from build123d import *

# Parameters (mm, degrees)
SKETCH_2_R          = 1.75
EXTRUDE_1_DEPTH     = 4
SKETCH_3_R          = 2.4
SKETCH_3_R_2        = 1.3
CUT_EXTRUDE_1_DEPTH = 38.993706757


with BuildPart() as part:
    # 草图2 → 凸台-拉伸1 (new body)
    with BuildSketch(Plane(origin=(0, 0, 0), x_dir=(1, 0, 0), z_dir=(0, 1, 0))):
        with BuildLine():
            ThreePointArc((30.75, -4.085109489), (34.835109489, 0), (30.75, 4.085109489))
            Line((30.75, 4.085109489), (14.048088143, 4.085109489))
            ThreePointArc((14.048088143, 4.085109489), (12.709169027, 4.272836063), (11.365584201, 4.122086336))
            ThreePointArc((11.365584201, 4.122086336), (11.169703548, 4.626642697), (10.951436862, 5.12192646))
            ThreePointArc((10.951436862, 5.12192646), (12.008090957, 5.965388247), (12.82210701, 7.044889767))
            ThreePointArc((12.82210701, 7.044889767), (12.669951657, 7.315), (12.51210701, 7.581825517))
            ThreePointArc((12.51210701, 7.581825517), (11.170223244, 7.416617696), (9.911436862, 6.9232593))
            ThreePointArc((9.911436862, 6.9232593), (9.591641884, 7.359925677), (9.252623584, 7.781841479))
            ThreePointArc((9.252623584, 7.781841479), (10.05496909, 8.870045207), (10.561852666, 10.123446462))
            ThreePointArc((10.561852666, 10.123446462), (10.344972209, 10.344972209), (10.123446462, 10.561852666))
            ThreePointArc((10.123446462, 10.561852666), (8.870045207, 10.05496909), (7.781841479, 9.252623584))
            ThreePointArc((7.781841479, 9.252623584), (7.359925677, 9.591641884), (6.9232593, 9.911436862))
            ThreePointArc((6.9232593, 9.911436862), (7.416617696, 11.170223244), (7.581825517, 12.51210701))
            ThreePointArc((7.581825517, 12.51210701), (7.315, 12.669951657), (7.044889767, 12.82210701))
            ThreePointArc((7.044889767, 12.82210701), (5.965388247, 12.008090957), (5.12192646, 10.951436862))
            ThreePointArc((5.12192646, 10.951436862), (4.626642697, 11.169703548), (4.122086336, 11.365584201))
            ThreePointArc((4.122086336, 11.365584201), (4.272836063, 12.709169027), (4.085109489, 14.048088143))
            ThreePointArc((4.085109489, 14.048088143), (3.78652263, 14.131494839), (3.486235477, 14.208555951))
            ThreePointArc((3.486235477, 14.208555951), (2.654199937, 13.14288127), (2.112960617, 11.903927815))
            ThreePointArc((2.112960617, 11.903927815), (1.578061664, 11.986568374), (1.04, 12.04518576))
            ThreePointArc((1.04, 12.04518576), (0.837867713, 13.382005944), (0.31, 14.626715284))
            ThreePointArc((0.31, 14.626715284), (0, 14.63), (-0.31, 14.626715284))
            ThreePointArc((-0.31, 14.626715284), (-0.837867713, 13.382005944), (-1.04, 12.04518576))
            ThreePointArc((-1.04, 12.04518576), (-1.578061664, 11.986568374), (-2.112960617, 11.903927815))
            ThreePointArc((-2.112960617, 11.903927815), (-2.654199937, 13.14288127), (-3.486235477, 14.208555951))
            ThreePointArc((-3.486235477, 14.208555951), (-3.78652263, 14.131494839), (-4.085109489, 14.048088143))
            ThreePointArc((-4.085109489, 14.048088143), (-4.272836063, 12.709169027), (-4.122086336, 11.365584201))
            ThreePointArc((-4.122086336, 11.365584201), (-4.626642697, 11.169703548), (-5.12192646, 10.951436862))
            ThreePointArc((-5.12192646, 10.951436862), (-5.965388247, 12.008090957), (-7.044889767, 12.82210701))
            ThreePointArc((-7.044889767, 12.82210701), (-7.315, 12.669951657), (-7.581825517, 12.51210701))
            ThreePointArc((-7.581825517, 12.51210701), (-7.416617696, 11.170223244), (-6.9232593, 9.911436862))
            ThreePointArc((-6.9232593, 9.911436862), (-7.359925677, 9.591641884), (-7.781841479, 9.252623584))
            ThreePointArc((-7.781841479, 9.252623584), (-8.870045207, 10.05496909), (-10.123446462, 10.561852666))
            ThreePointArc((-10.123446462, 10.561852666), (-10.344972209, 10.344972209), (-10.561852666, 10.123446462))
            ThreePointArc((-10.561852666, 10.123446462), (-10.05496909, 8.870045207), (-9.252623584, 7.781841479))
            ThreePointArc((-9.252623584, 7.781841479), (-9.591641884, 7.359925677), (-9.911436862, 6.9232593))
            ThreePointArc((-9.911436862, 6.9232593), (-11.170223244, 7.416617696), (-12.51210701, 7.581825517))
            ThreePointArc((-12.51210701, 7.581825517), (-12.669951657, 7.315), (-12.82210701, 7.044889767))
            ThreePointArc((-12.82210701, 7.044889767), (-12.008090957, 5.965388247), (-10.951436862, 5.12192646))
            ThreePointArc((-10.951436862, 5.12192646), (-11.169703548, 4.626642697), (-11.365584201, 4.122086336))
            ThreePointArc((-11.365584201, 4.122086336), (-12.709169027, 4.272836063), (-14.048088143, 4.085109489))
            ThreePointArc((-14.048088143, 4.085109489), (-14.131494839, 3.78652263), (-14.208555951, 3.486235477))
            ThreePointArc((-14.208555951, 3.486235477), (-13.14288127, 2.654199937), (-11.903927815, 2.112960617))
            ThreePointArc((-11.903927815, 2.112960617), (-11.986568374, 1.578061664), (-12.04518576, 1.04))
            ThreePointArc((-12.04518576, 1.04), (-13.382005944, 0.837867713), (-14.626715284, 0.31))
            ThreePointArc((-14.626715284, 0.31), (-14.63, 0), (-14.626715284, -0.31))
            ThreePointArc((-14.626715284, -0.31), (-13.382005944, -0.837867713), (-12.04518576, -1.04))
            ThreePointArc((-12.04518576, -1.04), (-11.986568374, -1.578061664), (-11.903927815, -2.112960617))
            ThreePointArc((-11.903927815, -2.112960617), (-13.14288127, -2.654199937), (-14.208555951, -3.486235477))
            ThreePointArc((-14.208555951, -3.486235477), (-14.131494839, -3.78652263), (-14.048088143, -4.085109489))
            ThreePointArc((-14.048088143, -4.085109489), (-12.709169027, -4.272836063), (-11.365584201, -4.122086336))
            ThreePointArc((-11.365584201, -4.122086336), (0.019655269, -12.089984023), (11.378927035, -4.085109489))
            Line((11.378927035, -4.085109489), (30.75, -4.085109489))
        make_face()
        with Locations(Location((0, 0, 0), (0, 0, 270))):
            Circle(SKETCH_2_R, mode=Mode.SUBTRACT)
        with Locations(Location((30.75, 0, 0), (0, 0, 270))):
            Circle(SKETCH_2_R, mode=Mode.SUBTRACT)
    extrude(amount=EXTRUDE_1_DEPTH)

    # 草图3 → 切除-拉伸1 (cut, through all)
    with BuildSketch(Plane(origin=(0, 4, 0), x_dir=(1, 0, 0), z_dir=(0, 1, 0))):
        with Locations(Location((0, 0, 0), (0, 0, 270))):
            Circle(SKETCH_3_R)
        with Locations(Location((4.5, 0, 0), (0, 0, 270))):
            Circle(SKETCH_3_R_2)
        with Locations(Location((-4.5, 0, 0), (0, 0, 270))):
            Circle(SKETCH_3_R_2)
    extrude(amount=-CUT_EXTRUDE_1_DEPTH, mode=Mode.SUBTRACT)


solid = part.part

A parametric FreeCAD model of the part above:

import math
import FreeCAD as App
import Part
import Sketcher

doc = App.newDocument("Part")
body = doc.addObject("PartDesign::Body", "Body")

# Sketch on XZ plane
sketch1 = doc.addObject("Sketcher::SketchObject", "Sketch")
body.addObject(sketch1)
sketch1.AttachmentSupport = (doc.XZ_Plane, [""])
sketch1.MapMode = "FlatFace"
sketch1.addGeometry(Part.ArcOfCircle(Part.Circle(App.Vector(30.8, 0, 0), App.Vector(0, 0, 1), 4.1), math.radians(-90), math.radians(90)), False)
sketch1.addGeometry(Part.LineSegment(App.Vector(30.8, -4.1, 0), App.Vector(14, -4.1, 0)), False)
sketch1.addGeometry(Part.ArcOfCircle(Part.Circle(App.Vector(12.6, 1.1, 0), App.Vector(0, 0, 1), 5.4), math.radians(-104), math.radians(-75)), False)
sketch1.addGeometry(Part.ArcOfCircle(Part.Circle(App.Vector(0, 0, 0), App.Vector(0, 0, 1), 12.1), math.radians(-25.07), math.radians(-19.93)), False)
sketch1.addGeometry(Part.ArcOfCircle(Part.Circle(App.Vector(8.1, -9.7, 0), App.Vector(0, 0, 1), 5.4), math.radians(30), math.radians(59)), False)
sketch1.addGeometry(Part.ArcOfCircle(Part.Circle(App.Vector(0, 0, 0), App.Vector(0, 0, 1), 14.6), math.radians(-31.21), math.radians(-28.79)), False)
sketch1.addGeometry(Part.ArcOfCircle(Part.Circle(App.Vector(12.5, -2.2, 0), App.Vector(0, 0, 1), 5.4), math.radians(-119), math.radians(-90)), False)
sketch1.addGeometry(Part.ArcOfCircle(Part.Circle(App.Vector(0, 0, 0), App.Vector(0, 0, 1), 12.1), math.radians(-40.07), math.radians(-34.93)), False)
sketch1.addGeometry(Part.ArcOfCircle(Part.Circle(App.Vector(5.3, -11.5, 0), App.Vector(0, 0, 1), 5.4), math.radians(15), math.radians(44)), False)
sketch1.addGeometry(Part.ArcOfCircle(Part.Circle(App.Vector(0, 0, 0), App.Vector(0, 0, 1), 14.6), math.radians(-46.21), math.radians(-43.79)), False)
sketch1.addGeometry(Part.ArcOfCircle(Part.Circle(App.Vector(11.5, -5.3, 0), App.Vector(0, 0, 1), 5.4), math.radians(-134), math.radians(-105)), False)
sketch1.addGeometry(Part.ArcOfCircle(Part.Circle(App.Vector(0, 0, 0), App.Vector(0, 0, 1), 12.1), math.radians(-55.07), math.radians(-49.93)), False)
sketch1.addGeometry(Part.ArcOfCircle(Part.Circle(App.Vector(2.2, -12.5, 0), App.Vector(0, 0, 1), 5.4), math.radians(0), math.radians(29)), False)
sketch1.addGeometry(Part.ArcOfCircle(Part.Circle(App.Vector(0, 0, 0), App.Vector(0, 0, 1), 14.6), math.radians(-61.21), math.radians(-58.79)), False)
sketch1.addGeometry(Part.ArcOfCircle(Part.Circle(App.Vector(9.7, -8.1, 0), App.Vector(0, 0, 1), 5.4), math.radians(-149), math.radians(-120)), False)
sketch1.addGeometry(Part.ArcOfCircle(Part.Circle(App.Vector(0, 0, 0), App.Vector(0, 0, 1), 12.1), math.radians(-70.07), math.radians(-64.93)), False)
sketch1.addGeometry(Part.ArcOfCircle(Part.Circle(App.Vector(-1.1, -12.6, 0), App.Vector(0, 0, 1), 5.4), math.radians(-15), math.radians(14)), False)
sketch1.addGeometry(Part.ArcOfCircle(Part.Circle(App.Vector(0, 0, 0), App.Vector(0, 0, 1), 14.6), math.radians(-76.21), math.radians(-73.79)), False)
sketch1.addGeometry(Part.ArcOfCircle(Part.Circle(App.Vector(7.3, -10.4, 0), App.Vector(0, 0, 1), 5.4), math.radians(-164), math.radians(-135)), False)
sketch1.addGeometry(Part.ArcOfCircle(Part.Circle(App.Vector(0, 0, 0), App.Vector(0, 0, 1), 12.1), math.radians(-85.07), math.radians(-79.93)), False)
sketch1.addGeometry(Part.ArcOfCircle(Part.Circle(App.Vector(-4.4, -11.9, 0), App.Vector(0, 0, 1), 5.4), math.radians(-30), math.radians(-1)), False)
sketch1.addGeometry(Part.ArcOfCircle(Part.Circle(App.Vector(0, 0, 0), App.Vector(0, 0, 1), 14.6), math.radians(-91.21), math.radians(-88.79)), False)
sketch1.addGeometry(Part.ArcOfCircle(Part.Circle(App.Vector(4.4, -11.9, 0), App.Vector(0, 0, 1), 5.4), math.radians(-179), math.radians(-150)), False)
sketch1.addGeometry(Part.ArcOfCircle(Part.Circle(App.Vector(0, 0, 0), App.Vector(0, 0, 1), 12.1), math.radians(-100.07), math.radians(-94.93)), False)
sketch1.addGeometry(Part.ArcOfCircle(Part.Circle(App.Vector(-7.3, -10.4, 0), App.Vector(0, 0, 1), 5.4), math.radians(-45), math.radians(-16)), False)
sketch1.addGeometry(Part.ArcOfCircle(Part.Circle(App.Vector(0, 0, 0), App.Vector(0, 0, 1), 14.6), math.radians(-106.21), math.radians(-103.79)), False)
sketch1.addGeometry(Part.ArcOfCircle(Part.Circle(App.Vector(1.1, -12.6, 0), App.Vector(0, 0, 1), 5.4), math.radians(166), math.radians(195)), False)
sketch1.addGeometry(Part.ArcOfCircle(Part.Circle(App.Vector(0, 0, 0), App.Vector(0, 0, 1), 12.1), math.radians(-115.07), math.radians(-109.93)), False)
sketch1.addGeometry(Part.ArcOfCircle(Part.Circle(App.Vector(-9.7, -8.1, 0), App.Vector(0, 0, 1), 5.4), math.radians(-60), math.radians(-31)), False)
sketch1.addGeometry(Part.ArcOfCircle(Part.Circle(App.Vector(0, 0, 0), App.Vector(0, 0, 1), 14.6), math.radians(-121.21), math.radians(-118.79)), False)
sketch1.addGeometry(Part.ArcOfCircle(Part.Circle(App.Vector(-2.2, -12.5, 0), App.Vector(0, 0, 1), 5.4), math.radians(151), math.radians(180)), False)
sketch1.addGeometry(Part.ArcOfCircle(Part.Circle(App.Vector(0, 0, 0), App.Vector(0, 0, 1), 12.1), math.radians(-130.07), math.radians(-124.93)), False)
sketch1.addGeometry(Part.ArcOfCircle(Part.Circle(App.Vector(-11.5, -5.3, 0), App.Vector(0, 0, 1), 5.4), math.radians(-75), math.radians(-46)), False)
sketch1.addGeometry(Part.ArcOfCircle(Part.Circle(App.Vector(0, 0, 0), App.Vector(0, 0, 1), 14.6), math.radians(-136.21), math.radians(-133.79)), False)
sketch1.addGeometry(Part.ArcOfCircle(Part.Circle(App.Vector(-5.3, -11.5, 0), App.Vector(0, 0, 1), 5.4), math.radians(136), math.radians(165)), False)
sketch1.addGeometry(Part.ArcOfCircle(Part.Circle(App.Vector(0, 0, 0), App.Vector(0, 0, 1), 12.1), math.radians(-145.07), math.radians(-139.93)), False)
sketch1.addGeometry(Part.ArcOfCircle(Part.Circle(App.Vector(-12.5, -2.2, 0), App.Vector(0, 0, 1), 5.4), math.radians(-90), math.radians(-61)), False)
sketch1.addGeometry(Part.ArcOfCircle(Part.Circle(App.Vector(0, 0, 0), App.Vector(0, 0, 1), 14.6), math.radians(-151.21), math.radians(-148.79)), False)
sketch1.addGeometry(Part.ArcOfCircle(Part.Circle(App.Vector(-8.1, -9.7, 0), App.Vector(0, 0, 1), 5.4), math.radians(121), math.radians(150)), False)
sketch1.addGeometry(Part.ArcOfCircle(Part.Circle(App.Vector(0, 0, 0), App.Vector(0, 0, 1), 12.1), math.radians(-160.07), math.radians(-154.93)), False)
sketch1.addGeometry(Part.ArcOfCircle(Part.Circle(App.Vector(-12.6, 1.1, 0), App.Vector(0, 0, 1), 5.4), math.radians(-105), math.radians(-76)), False)
sketch1.addGeometry(Part.ArcOfCircle(Part.Circle(App.Vector(0, 0, 0), App.Vector(0, 0, 1), 14.6), math.radians(-166.21), math.radians(-163.79)), False)
sketch1.addGeometry(Part.ArcOfCircle(Part.Circle(App.Vector(-10.4, -7.3, 0), App.Vector(0, 0, 1), 5.4), math.radians(106), math.radians(135)), False)
sketch1.addGeometry(Part.ArcOfCircle(Part.Circle(App.Vector(0, 0, 0), App.Vector(0, 0, 1), 12.1), math.radians(-175.07), math.radians(-169.93)), False)
sketch1.addGeometry(Part.ArcOfCircle(Part.Circle(App.Vector(-11.9, 4.4, 0), App.Vector(0, 0, 1), 5.4), math.radians(-120), math.radians(-91)), False)
sketch1.addGeometry(Part.ArcOfCircle(Part.Circle(App.Vector(0, 0, 0), App.Vector(0, 0, 1), 14.6), math.radians(178.79), math.radians(181.21)), False)
sketch1.addGeometry(Part.ArcOfCircle(Part.Circle(App.Vector(-11.9, -4.4, 0), App.Vector(0, 0, 1), 5.4), math.radians(91), math.radians(120)), False)
sketch1.addGeometry(Part.ArcOfCircle(Part.Circle(App.Vector(0, 0, 0), App.Vector(0, 0, 1), 12.1), math.radians(169.93), math.radians(175.07)), False)
sketch1.addGeometry(Part.ArcOfCircle(Part.Circle(App.Vector(-10.4, 7.3, 0), App.Vector(0, 0, 1), 5.4), math.radians(-135), math.radians(-106)), False)
sketch1.addGeometry(Part.ArcOfCircle(Part.Circle(App.Vector(0, 0, 0), App.Vector(0, 0, 1), 14.6), math.radians(163.79), math.radians(166.21)), False)
sketch1.addGeometry(Part.ArcOfCircle(Part.Circle(App.Vector(-12.6, -1.1, 0), App.Vector(0, 0, 1), 5.4), math.radians(76), math.radians(105)), False)
sketch1.addGeometry(Part.ArcOfCircle(Part.Circle(App.Vector(0, 0, 0), App.Vector(0, 0, 1), 12.1), math.radians(20), math.radians(160)), False)
sketch1.addGeometry(Part.LineSegment(App.Vector(11.4, 4.1, 0), App.Vector(30.8, 4.1, 0)), False)
sketch1.addGeometry(Part.Circle(App.Vector(0, 0, 0), App.Vector(0, 0, 1), 1.8), False)
sketch1.addGeometry(Part.Circle(App.Vector(30.8, 0, 0), App.Vector(0, 0, 1), 1.8), False)
sketch1.addConstraint(Sketcher.Constraint("Tangent", 0, 1, 1, 1))
sketch1.addConstraint(Sketcher.Constraint("Coincident", 1, 2, 2, 2))
sketch1.addConstraint(Sketcher.Constraint("Coincident", 2, 1, 3, 2))
sketch1.addConstraint(Sketcher.Constraint("Coincident", 3, 1, 4, 2))
sketch1.addConstraint(Sketcher.Constraint("Coincident", 4, 1, 5, 2))
sketch1.addConstraint(Sketcher.Constraint("Coincident", 5, 1, 6, 2))
sketch1.addConstraint(Sketcher.Constraint("Coincident", 6, 1, 7, 2))
sketch1.addConstraint(Sketcher.Constraint("Coincident", 7, 1, 8, 2))
sketch1.addConstraint(Sketcher.Constraint("Coincident", 8, 1, 9, 2))
sketch1.addConstraint(Sketcher.Constraint("Coincident", 9, 1, 10, 2))
sketch1.addConstraint(Sketcher.Constraint("Coincident", 10, 1, 11, 2))
sketch1.addConstraint(Sketcher.Constraint("Coincident", 11, 1, 12, 2))
sketch1.addConstraint(Sketcher.Constraint("Coincident", 12, 1, 13, 2))
sketch1.addConstraint(Sketcher.Constraint("Coincident", 13, 1, 14, 2))
sketch1.addConstraint(Sketcher.Constraint("Coincident", 14, 1, 15, 2))
sketch1.addConstraint(Sketcher.Constraint("Coincident", 15, 1, 16, 2))
sketch1.addConstraint(Sketcher.Constraint("Coincident", 16, 1, 17, 2))
sketch1.addConstraint(Sketcher.Constraint("Coincident", 17, 1, 18, 2))
sketch1.addConstraint(Sketcher.Constraint("Coincident", 18, 1, 19, 2))
sketch1.addConstraint(Sketcher.Constraint("Coincident", 19, 1, 20, 2))
sketch1.addConstraint(Sketcher.Constraint("Coincident", 20, 1, 21, 2))
sketch1.addConstraint(Sketcher.Constraint("Coincident", 21, 1, 22, 2))
sketch1.addConstraint(Sketcher.Constraint("Coincident", 22, 1, 23, 2))
sketch1.addConstraint(Sketcher.Constraint("Coincident", 23, 1, 24, 2))
sketch1.addConstraint(Sketcher.Constraint("Coincident", 24, 1, 25, 2))
sketch1.addConstraint(Sketcher.Constraint("Coincident", 25, 1, 26, 2))
sketch1.addConstraint(Sketcher.Constraint("Coincident", 26, 1, 27, 2))
sketch1.addConstraint(Sketcher.Constraint("Coincident", 27, 1, 28, 2))
sketch1.addConstraint(Sketcher.Constraint("Coincident", 28, 1, 29, 2))
sketch1.addConstraint(Sketcher.Constraint("Coincident", 29, 1, 30, 2))
sketch1.addConstraint(Sketcher.Constraint("Coincident", 30, 1, 31, 2))
sketch1.addConstraint(Sketcher.Constraint("Coincident", 31, 1, 32, 2))
sketch1.addConstraint(Sketcher.Constraint("Coincident", 32, 1, 33, 2))
sketch1.addConstraint(Sketcher.Constraint("Coincident", 33, 1, 34, 2))
sketch1.addConstraint(Sketcher.Constraint("Coincident", 34, 1, 35, 2))
sketch1.addConstraint(Sketcher.Constraint("Coincident", 35, 1, 36, 2))
sketch1.addConstraint(Sketcher.Constraint("Coincident", 36, 1, 37, 2))
sketch1.addConstraint(Sketcher.Constraint("Coincident", 37, 1, 38, 2))
sketch1.addConstraint(Sketcher.Constraint("Coincident", 38, 1, 39, 2))
sketch1.addConstraint(Sketcher.Constraint("Coincident", 39, 1, 40, 2))
sketch1.addConstraint(Sketcher.Constraint("Coincident", 40, 1, 41, 2))
sketch1.addConstraint(Sketcher.Constraint("Coincident", 41, 1, 42, 2))
sketch1.addConstraint(Sketcher.Constraint("Coincident", 42, 1, 43, 2))
sketch1.addConstraint(Sketcher.Constraint("Coincident", 43, 1, 44, 2))
sketch1.addConstraint(Sketcher.Constraint("Coincident", 44, 1, 45, 2))
sketch1.addConstraint(Sketcher.Constraint("Coincident", 45, 1, 46, 2))
sketch1.addConstraint(Sketcher.Constraint("Coincident", 46, 1, 47, 2))
sketch1.addConstraint(Sketcher.Constraint("Coincident", 47, 1, 48, 2))
sketch1.addConstraint(Sketcher.Constraint("Coincident", 48, 1, 49, 2))
sketch1.addConstraint(Sketcher.Constraint("Coincident", 49, 1, 50, 2))
sketch1.addConstraint(Sketcher.Constraint("Coincident", 50, 1, 51, 2))
sketch1.addConstraint(Sketcher.Constraint("Coincident", 51, 1, 52, 1))
sketch1.addConstraint(Sketcher.Constraint("Tangent", 52, 2, 0, 2))
sketch1.addConstraint(Sketcher.Constraint("Horizontal", 1))
sketch1.addConstraint(Sketcher.Constraint("Horizontal", 52))
sketch1.addConstraint(Sketcher.Constraint("Coincident", 3, 3, -1, 1))
sketch1.addConstraint(Sketcher.Constraint("Coincident", 5, 3, -1, 1))
sketch1.addConstraint(Sketcher.Constraint("Coincident", 7, 3, -1, 1))
sketch1.addConstraint(Sketcher.Constraint("Coincident", 9, 3, -1, 1))
sketch1.addConstraint(Sketcher.Constraint("Coincident", 11, 3, -1, 1))
sketch1.addConstraint(Sketcher.Constraint("Coincident", 13, 3, -1, 1))
sketch1.addConstraint(Sketcher.Constraint("Coincident", 15, 3, -1, 1))
sketch1.addConstraint(Sketcher.Constraint("Coincident", 17, 3, -1, 1))
sketch1.addConstraint(Sketcher.Constraint("Coincident", 19, 3, -1, 1))
sketch1.addConstraint(Sketcher.Constraint("Coincident", 21, 3, -1, 1))
sketch1.addConstraint(Sketcher.Constraint("Coincident", 23, 3, -1, 1))
sketch1.addConstraint(Sketcher.Constraint("Coincident", 25, 3, -1, 1))
sketch1.addConstraint(Sketcher.Constraint("Coincident", 27, 3, -1, 1))
sketch1.addConstraint(Sketcher.Constraint("Coincident", 29, 3, -1, 1))
sketch1.addConstraint(Sketcher.Constraint("Coincident", 31, 3, -1, 1))
sketch1.addConstraint(Sketcher.Constraint("Coincident", 33, 3, -1, 1))
sketch1.addConstraint(Sketcher.Constraint("Coincident", 35, 3, -1, 1))
sketch1.addConstraint(Sketcher.Constraint("Coincident", 37, 3, -1, 1))
sketch1.addConstraint(Sketcher.Constraint("Coincident", 39, 3, -1, 1))
sketch1.addConstraint(Sketcher.Constraint("Coincident", 41, 3, -1, 1))
sketch1.addConstraint(Sketcher.Constraint("Coincident", 43, 3, -1, 1))
sketch1.addConstraint(Sketcher.Constraint("Coincident", 45, 3, -1, 1))
sketch1.addConstraint(Sketcher.Constraint("Coincident", 47, 3, -1, 1))
sketch1.addConstraint(Sketcher.Constraint("Coincident", 49, 3, -1, 1))
sketch1.addConstraint(Sketcher.Constraint("Coincident", 51, 3, -1, 1))
sketch1.addConstraint(Sketcher.Constraint("Coincident", 53, 3, -1, 1))
sketch1.addConstraint(Sketcher.Constraint("Coincident", 54, 3, 0, 3))
sketch1.addConstraint(Sketcher.Constraint("Equal", 2, 4))
sketch1.addConstraint(Sketcher.Constraint("Equal", 4, 6))
sketch1.addConstraint(Sketcher.Constraint("Equal", 3, 7))
sketch1.addConstraint(Sketcher.Constraint("Equal", 6, 8))
sketch1.addConstraint(Sketcher.Constraint("Equal", 8, 10))
sketch1.addConstraint(Sketcher.Constraint("Equal", 7, 11))
sketch1.addConstraint(Sketcher.Constraint("Equal", 10, 12))
sketch1.addConstraint(Sketcher.Constraint("Equal", 5, 13))
sketch1.addConstraint(Sketcher.Constraint("Equal", 12, 14))
sketch1.addConstraint(Sketcher.Constraint("Equal", 11, 15))
sketch1.addConstraint(Sketcher.Constraint("Equal", 14, 16))
sketch1.addConstraint(Sketcher.Constraint("Equal", 13, 17))
sketch1.addConstraint(Sketcher.Constraint("Equal", 16, 18))
sketch1.addConstraint(Sketcher.Constraint("Equal", 15, 19))
sketch1.addConstraint(Sketcher.Constraint("Equal", 18, 20))
sketch1.addConstraint(Sketcher.Constraint("Equal", 17, 21))
sketch1.addConstraint(Sketcher.Constraint("Equal", 20, 22))
sketch1.addConstraint(Sketcher.Constraint("Equal", 19, 23))
sketch1.addConstraint(Sketcher.Constraint("Equal", 22, 24))
sketch1.addConstraint(Sketcher.Constraint("Equal", 21, 25))
sketch1.addConstraint(Sketcher.Constraint("Equal", 24, 26))
sketch1.addConstraint(Sketcher.Constraint("Equal", 23, 27))
sketch1.addConstraint(Sketcher.Constraint("Equal", 26, 28))
sketch1.addConstraint(Sketcher.Constraint("Equal", 25, 29))
sketch1.addConstraint(Sketcher.Constraint("Equal", 28, 30))
sketch1.addConstraint(Sketcher.Constraint("Equal", 27, 31))
sketch1.addConstraint(Sketcher.Constraint("Equal", 30, 32))
sketch1.addConstraint(Sketcher.Constraint("Equal", 25, 33))
sketch1.addConstraint(Sketcher.Constraint("Equal", 32, 34))
sketch1.addConstraint(Sketcher.Constraint("Equal", 31, 35))
sketch1.addConstraint(Sketcher.Constraint("Equal", 34, 36))
sketch1.addConstraint(Sketcher.Constraint("Equal", 29, 37))
sketch1.addConstraint(Sketcher.Constraint("Equal", 36, 38))
sketch1.addConstraint(Sketcher.Constraint("Equal", 35, 39))
sketch1.addConstraint(Sketcher.Constraint("Equal", 38, 40))
sketch1.addConstraint(Sketcher.Constraint("Equal", 37, 41))
sketch1.addConstraint(Sketcher.Constraint("Equal", 40, 42))
sketch1.addConstraint(Sketcher.Constraint("Equal", 39, 43))
sketch1.addConstraint(Sketcher.Constraint("Equal", 42, 44))
sketch1.addConstraint(Sketcher.Constraint("Equal", 41, 45))
sketch1.addConstraint(Sketcher.Constraint("Equal", 44, 46))
sketch1.addConstraint(Sketcher.Constraint("Equal", 43, 47))
sketch1.addConstraint(Sketcher.Constraint("Equal", 46, 48))
sketch1.addConstraint(Sketcher.Constraint("Equal", 45, 49))
sketch1.addConstraint(Sketcher.Constraint("Equal", 48, 50))
sketch1.addConstraint(Sketcher.Constraint("Equal", 47, 51))
sketch1.addConstraint(Sketcher.Constraint("Equal", 53, 54))
sketch1.addConstraint(Sketcher.Constraint("Symmetric", 2, 3, 50, 3, -1, 1))
sketch1.addConstraint(Sketcher.Constraint("Symmetric", 20, 3, 22, 3, -2))
sketch1.addConstraint(Sketcher.Constraint("Symmetric", 18, 3, 24, 3, -2))
sketch1.addConstraint(Sketcher.Constraint("Symmetric", 16, 3, 26, 3, -2))
sketch1.addConstraint(Sketcher.Constraint("Symmetric", 14, 3, 28, 3, -2))
sketch1.addConstraint(Sketcher.Constraint("Symmetric", 12, 3, 30, 3, -2))
sketch1.addConstraint(Sketcher.Constraint("Symmetric", 10, 3, 32, 3, -2))
sketch1.addConstraint(Sketcher.Constraint("Symmetric", 8, 3, 34, 3, -2))
sketch1.addConstraint(Sketcher.Constraint("Symmetric", 6, 3, 36, 3, -2))
sketch1.addConstraint(Sketcher.Constraint("Symmetric", 4, 3, 38, 3, -2))
sketch1.addConstraint(Sketcher.Constraint("Symmetric", 2, 3, 40, 3, -2))
sketch1.addConstraint(Sketcher.Constraint("Symmetric", 44, 3, 46, 3, -1))
sketch1.addConstraint(Sketcher.Constraint("Symmetric", 42, 3, 48, 3, -1))
sketch1.addConstraint(Sketcher.Constraint("PointOnObject", 0, 3, -1))
sketch1.addConstraint(Sketcher.Constraint("Horizontal", 9, 1, 32, 1))
sketch1.addConstraint(Sketcher.Constraint("Horizontal", 1, 2, 40, 1))
sketch1.addConstraint(Sketcher.Constraint("Diameter", 53, 3.5))
sketch1.addConstraint(Sketcher.Constraint("Radius", 2, 5.4))
sketch1.addConstraint(Sketcher.Constraint("Radius", 3, 12.09))
sketch1.addConstraint(Sketcher.Constraint("Radius", 5, 14.630002))
sketch1.addConstraint(Sketcher.Constraint("DistanceX", -1, 1, 0, 3, 30.75))
sketch1.addConstraint(Sketcher.Constraint("DistanceX", -1, 1, 19, 1, 1.04))
sketch1.addConstraint(Sketcher.Constraint("DistanceX", -1, 1, 20, 1, 0.31))
sketch1.addConstraint(Sketcher.Constraint("DistanceY", 43, 1, -1, 1, 1.04))
sketch1.addConstraint(Sketcher.Constraint("DistanceY", 44, 1, -1, 1, 0.31))
sketch1.addConstraint(Sketcher.Constraint("Radius", 0, 4.085109))
sketch1.addConstraint(Sketcher.Constraint("DistanceX", -1, 1, 2, 3, 12.63474))
sketch1.addConstraint(Sketcher.Constraint("DistanceX", -1, 1, 6, 3, 12.49582))
sketch1.addConstraint(Sketcher.Constraint("DistanceY", 6, 3, -1, 1, 2.18185))
sketch1.addConstraint(Sketcher.Constraint("DistanceX", -1, 1, 8, 3, 5.341662))
sketch1.addConstraint(Sketcher.Constraint("DistanceY", 8, 3, -1, 1, 11.505331))
sketch1.addConstraint(Sketcher.Constraint("DistanceX", -1, 1, 10, 3, 11.505331))
sketch1.addConstraint(Sketcher.Constraint("DistanceY", 10, 3, -1, 1, 5.341662))
sketch1.addConstraint(Sketcher.Constraint("DistanceX", -1, 1, 12, 3, 2.18185))
sketch1.addConstraint(Sketcher.Constraint("DistanceY", 12, 3, -1, 1, 12.49582))
sketch1.addConstraint(Sketcher.Constraint("DistanceX", 16, 3, -1, 1, 1.126651))
sketch1.addConstraint(Sketcher.Constraint("DistanceY", 16, 3, -1, 1, 12.63474))
sketch1.addConstraint(Sketcher.Constraint("DistanceX", -1, 1, 18, 3, 7.293078))
sketch1.addConstraint(Sketcher.Constraint("DistanceY", 18, 3, -1, 1, 10.37868))
sketch1.addConstraint(Sketcher.Constraint("DistanceX", 42, 3, -1, 1, 10.37868))
sketch1.addConstraint(Sketcher.Constraint("DistanceY", 42, 3, -1, 1, 7.293078))
sketch1.addConstraint(Sketcher.Constraint("DistanceY", 4, 1, -1, 1, 7.04489))
sketch1.addConstraint(Sketcher.Constraint("DistanceX", -1, 1, 13, 1, 7.04489))
sketch1.addConstraint(Sketcher.Constraint("DistanceX", -1, 1, 4, 3, 8.137448))
sketch1.addConstraint(Sketcher.Constraint("DistanceX", -1, 1, 14, 3, 9.730773))
pad1 = doc.addObject("PartDesign::Pad", "Pad")
body.addObject(pad1)
pad1.Profile = sketch1
pad1.Length = 4
pad1.Reversed = True

# Sketch on XZ plane
sketch2 = doc.addObject("Sketcher::SketchObject", "Sketch001")
body.addObject(sketch2)
sketch2.AttachmentSupport = (doc.XZ_Plane, [""])
sketch2.MapMode = "FlatFace"
sketch2.AttachmentOffset = App.Placement(App.Vector(0, 0, -4), App.Rotation())
sketch2.addGeometry(Part.Circle(App.Vector(0, 0, 0), App.Vector(0, 0, 1), 2.4), False)
sketch2.addGeometry(Part.Circle(App.Vector(4.5, 0, 0), App.Vector(0, 0, 1), 1.3), False)
sketch2.addGeometry(Part.Circle(App.Vector(-4.5, 0, 0), App.Vector(0, 0, 1), 1.3), False)
sketch2.addConstraint(Sketcher.Constraint("Coincident", 0, 3, -1, 1))
sketch2.addConstraint(Sketcher.Constraint("Equal", 1, 2))
sketch2.addConstraint(Sketcher.Constraint("Symmetric", 1, 3, 2, 3, -1, 1))
sketch2.addConstraint(Sketcher.Constraint("PointOnObject", 1, 3, -1))
sketch2.addConstraint(Sketcher.Constraint("Diameter", 0, 4.8))
sketch2.addConstraint(Sketcher.Constraint("Diameter", 1, 2.6))
sketch2.addConstraint(Sketcher.Constraint("DistanceX", 2, 3, 1, 3, 9.0))
pocket1 = doc.addObject("PartDesign::Pocket", "Pocket")
body.addObject(pocket1)
pocket1.Profile = sketch2
pocket1.Type = "ThroughAll"
pocket1.Reversed = True

doc.recompute()
